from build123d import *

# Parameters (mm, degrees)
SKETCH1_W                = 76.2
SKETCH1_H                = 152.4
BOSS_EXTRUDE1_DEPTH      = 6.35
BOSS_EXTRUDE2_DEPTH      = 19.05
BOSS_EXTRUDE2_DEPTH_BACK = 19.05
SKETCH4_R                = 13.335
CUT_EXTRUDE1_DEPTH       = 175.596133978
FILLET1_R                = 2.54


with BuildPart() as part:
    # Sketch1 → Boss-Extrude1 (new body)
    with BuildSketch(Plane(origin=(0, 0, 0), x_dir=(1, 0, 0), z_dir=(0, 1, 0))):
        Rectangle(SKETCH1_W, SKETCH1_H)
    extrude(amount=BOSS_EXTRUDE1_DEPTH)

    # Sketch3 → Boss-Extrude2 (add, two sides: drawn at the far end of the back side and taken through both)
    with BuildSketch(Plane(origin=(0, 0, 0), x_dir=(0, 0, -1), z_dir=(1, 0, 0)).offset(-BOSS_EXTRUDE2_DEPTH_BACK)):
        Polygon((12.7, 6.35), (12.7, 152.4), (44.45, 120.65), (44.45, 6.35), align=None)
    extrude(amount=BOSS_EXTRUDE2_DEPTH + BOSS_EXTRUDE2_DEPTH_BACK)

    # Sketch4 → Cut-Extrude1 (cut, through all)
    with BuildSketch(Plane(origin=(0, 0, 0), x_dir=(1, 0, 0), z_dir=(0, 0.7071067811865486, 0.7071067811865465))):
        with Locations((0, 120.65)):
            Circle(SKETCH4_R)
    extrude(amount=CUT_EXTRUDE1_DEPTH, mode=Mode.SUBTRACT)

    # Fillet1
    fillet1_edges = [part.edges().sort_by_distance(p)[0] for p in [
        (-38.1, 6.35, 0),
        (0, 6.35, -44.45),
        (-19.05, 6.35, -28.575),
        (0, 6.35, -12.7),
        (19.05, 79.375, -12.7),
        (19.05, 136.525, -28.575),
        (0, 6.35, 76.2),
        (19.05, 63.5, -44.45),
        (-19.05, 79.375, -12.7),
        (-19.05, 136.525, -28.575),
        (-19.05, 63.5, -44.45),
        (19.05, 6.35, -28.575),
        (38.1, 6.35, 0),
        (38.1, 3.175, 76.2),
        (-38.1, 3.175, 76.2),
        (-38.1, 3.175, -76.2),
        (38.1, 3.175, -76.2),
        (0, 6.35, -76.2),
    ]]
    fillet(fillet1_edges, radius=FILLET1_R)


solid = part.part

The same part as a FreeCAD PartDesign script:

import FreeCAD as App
import Part
import Sketcher
Q = App.Units.Quantity


def edges_at(feature, points):
    """Names of the edges that pass closest to the given points."""
    edges = feature.Shape.Edges
    near = lambda p: min(range(len(edges)), key=lambda i: edges[i].distToShape(Part.Vertex(*p))[0])
    return sorted({f"Edge{near(p) + 1}" for p in points})

doc = App.newDocument("Part")
body = doc.addObject("PartDesign::Body", "Body")

sketch1 = body.newObject("Sketcher::SketchObject", "Sketch")
sketch1.AttachmentSupport = (doc.getObject("XZ_Plane"), [""])
sketch1.MapMode = "FlatFace"
sketch1.addGeometry([
    Part.LineSegment(App.Vector(-38, -76, 0), App.Vector(-38, 76, 0)),
    Part.LineSegment(App.Vector(-38, 76, 0), App.Vector(38, 76, 0)),
    Part.LineSegment(App.Vector(38, 76, 0), App.Vector(38, -76, 0)),
    Part.LineSegment(App.Vector(38, -76, 0), App.Vector(-38, -76, 0)),
], False)
sketch1.addConstraint([
    Sketcher.Constraint("Coincident", 0, 2, 1, 1),
    Sketcher.Constraint("Coincident", 1, 2, 2, 1),
    Sketcher.Constraint("Coincident", 2, 2, 3, 1),
    Sketcher.Constraint("Coincident", 3, 2, 0, 1),
    Sketcher.Constraint("Vertical", 0),
    Sketcher.Constraint("Horizontal", 1),
    Sketcher.Constraint("Vertical", 2),
    Sketcher.Constraint("Horizontal", 3),
    Sketcher.Constraint("Symmetric", 0, 2, 2, 2, -1, 1),
    Sketcher.Constraint("DistanceX", 1, 1, 1, 2, Q("3 in")),
    Sketcher.Constraint("DistanceY", 0, 1, 0, 2, Q("6 in")),
])
pad1 = body.newObject("PartDesign::Pad", "Pad")
pad1.Profile = sketch1
pad1.Length = Q("0.25 in")
pad1.Reversed = True

sketch2 = body.newObject("Sketcher::SketchObject", "Sketch001")
sketch2.AttachmentSupport = (doc.getObject("YZ_Plane"), [""])
sketch2.MapMode = "FlatFace"
sketch2.addGeometry([
    Part.LineSegment(App.Vector(152, -13, 0), App.Vector(6, -13, 0)),
    Part.LineSegment(App.Vector(6, -13, 0), App.Vector(6, -44, 0)),
    Part.LineSegment(App.Vector(6, -44, 0), App.Vector(121, -44, 0)),
    Part.LineSegment(App.Vector(121, -44, 0), App.Vector(152, -13, 0)),
], False)
sketch2.addConstraint([
    Sketcher.Constraint("Coincident", 0, 2, 1, 1),
    Sketcher.Constraint("Coincident", 1, 2, 2, 1),
    Sketcher.Constraint("Coincident", 2, 2, 3, 1),
    Sketcher.Constraint("Coincident", 3, 2, 0, 1),
    Sketcher.Constraint("Horizontal", 0),
    Sketcher.Constraint("Vertical", 1),
    Sketcher.Constraint("Horizontal", 2),
    Sketcher.Constraint("DistanceX", 2, 1, 2, 2, Q("4.5 in")),
    Sketcher.Constraint("DistanceX", -1, 1, 3, 2, Q("6 in")),
    Sketcher.Constraint("Angle", 3, Q("45 deg")),
    Sketcher.Constraint("DistanceX", 0, 2, 0, 1, Q("5.75 in")),
    Sketcher.Constraint("DistanceY", 0, 2, -1, 1, Q("0.5 in")),
])
pad2 = body.newObject("PartDesign::Pad", "Pad001")
pad2.Profile = sketch2
pad2.Type = "TwoLengths"
pad2.Length = Q("0.75 in")
pad2.Length2 = Q("0.75 in")

sketch3 = body.newObject("Sketcher::SketchObject", "Sketch002")
sketch3.Placement = App.Placement(App.Vector(0, 0, 0), App.Rotation(App.Vector(1, 0, 0), App.Vector(0, 0.707106781, -0.707106781), App.Vector(0, 0.707106781, 0.707106781), "ZXY"))
sketch3.addGeometry(Part.Circle(App.Vector(0, 121, 0), App.Vector(0, 0, 1), 13), False)
sketch3.addConstraint([
    Sketcher.Constraint("PointOnObject", 0, 3, -2),
    Sketcher.Constraint("Diameter", 0, Q("1.05 in")),
    Sketcher.Constraint("DistanceY", -1, 1, 0, 3, Q("4.75 in")),
])
pocket1 = body.newObject("PartDesign::Pocket", "Pocket")
pocket1.Profile = sketch3
pocket1.Type = "ThroughAll"
pocket1.Reversed = True
doc.recompute()

fillet = body.newObject("PartDesign::Fillet", "Fillet")
fillet.Base = (pocket1, edges_at(pocket1, [
    (-38.1, 6.35, 0),
    (0, 6.35, -44.45),
    (-19.05, 6.35, -28.575),
    (0, 6.35, -12.7),
    (19.05, 79.375, -12.7),
    (19.05, 136.525, -28.575),
    (0, 6.35, 76.2),
    (19.05, 63.5, -44.45),
    (-19.05, 79.375, -12.7),
    (-19.05, 136.525, -28.575),
    (-19.05, 63.5, -44.45),
    (19.05, 6.35, -28.575),
    (38.1, 6.35, 0),
    (38.1, 3.175, 76.2),
    (-38.1, 3.175, 76.2),
    (-38.1, 3.175, -76.2),
    (38.1, 3.175, -76.2),
    (0, 6.35, -76.2),
]))
fillet.Radius = Q("0.1 in")

doc.recompute()
